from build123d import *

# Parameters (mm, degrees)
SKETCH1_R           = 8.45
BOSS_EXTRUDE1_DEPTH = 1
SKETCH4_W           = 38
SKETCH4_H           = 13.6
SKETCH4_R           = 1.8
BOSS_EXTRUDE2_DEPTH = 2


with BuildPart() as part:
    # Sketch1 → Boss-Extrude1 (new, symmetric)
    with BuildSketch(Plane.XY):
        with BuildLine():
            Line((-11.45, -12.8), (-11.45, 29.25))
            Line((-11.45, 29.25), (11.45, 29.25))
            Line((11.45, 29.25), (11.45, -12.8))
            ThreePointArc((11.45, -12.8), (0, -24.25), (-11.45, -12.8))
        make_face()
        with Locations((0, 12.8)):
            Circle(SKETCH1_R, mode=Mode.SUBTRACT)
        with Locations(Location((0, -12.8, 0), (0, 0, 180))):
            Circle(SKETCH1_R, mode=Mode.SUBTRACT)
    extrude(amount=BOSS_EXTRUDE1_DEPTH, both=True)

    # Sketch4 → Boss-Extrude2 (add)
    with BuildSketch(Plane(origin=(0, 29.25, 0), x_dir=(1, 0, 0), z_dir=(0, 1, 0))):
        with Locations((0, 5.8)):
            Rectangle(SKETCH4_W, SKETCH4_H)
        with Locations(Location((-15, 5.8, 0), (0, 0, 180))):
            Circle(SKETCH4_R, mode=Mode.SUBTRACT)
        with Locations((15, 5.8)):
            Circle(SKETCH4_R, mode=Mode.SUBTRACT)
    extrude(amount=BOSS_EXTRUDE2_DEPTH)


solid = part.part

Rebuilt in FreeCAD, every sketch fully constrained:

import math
import FreeCAD as App
import Part
import Sketcher
from FreeCAD import Vector
Q = App.Units.Quantity


def add_polygon(sketch, points):
    """Adds a closed chain of lines whose ends are joined by coincident constraints."""
    first, n = sketch.GeometryCount, len(points)
    for a, b in zip(points, points[1:] + points[:1]):
        sketch.addGeometry(Part.LineSegment(App.Vector(*a, 0), App.Vector(*b, 0)), False)
    for i in range(n):
        sketch.addConstraint(Sketcher.Constraint("Coincident", first + i, 2, first + (i + 1) % n, 1))

doc = App.newDocument("Part")
params = doc.addObject("Spreadsheet::Sheet", "Params")
for row, (alias, value) in enumerate([
    ("sketch1_diameter", "16.9 mm"),
    ("sketch1_radius", "11.45 mm"),
    ("sketch1_height", "42.05 mm"),
    ("pad1_length", "2 mm"),
    ("sketch2_diameter", "3.6 mm"),
    ("sketch2_width", "38 mm"),
    ("sketch2_height", "13.6 mm"),
    ("pad2_length", "2 mm"),
], start=1):
    params.set(f"A{row}", alias)
    params.set(f"B{row}", "=" + value)
    params.setAlias(f"B{row}", alias)

body = doc.addObject("PartDesign::Body", "Body")

sketch1 = doc.addObject("Sketcher::SketchObject", "Sketch")
body.addObject(sketch1)
sketch1.AttachmentSupport = (doc.XY_Plane, [""])
sketch1.MapMode = "FlatFace"
sketch1.addGeometry([
    Part.LineSegment(Vector(-11, 29, 0), Vector(-11, -13, 0)),
    Part.ArcOfCircle(Part.Circle(Vector(0, -13, 0), Vector(0, 0, 1), 11), math.radians(180), math.radians(360)),
    Part.LineSegment(Vector(11, -13, 0), Vector(11, 29, 0)),
    Part.LineSegment(Vector(11, 29, 0), Vector(-11, 29, 0)),
    Part.Circle(Vector(0, -13, 0), Vector(0, 0, 1), 8),
    Part.Circle(Vector(0, 13, 0), Vector(0, 0, 1), 8),
], False)
sketch1.addConstraint([
    Sketcher.Constraint("Tangent", 0, 2, 1, 1),
    Sketcher.Constraint("Tangent", 1, 2, 2, 1),
    Sketcher.Constraint("Coincident", 2, 2, 3, 1),
    Sketcher.Constraint("Coincident", 3, 2, 0, 1),
    Sketcher.Constraint("Vertical", 0),
    Sketcher.Constraint("Vertical", 2),
    Sketcher.Constraint("Horizontal", 3),
    Sketcher.Constraint("Coincident", 4, 3, 1, 3),
    Sketcher.Constraint("Equal", 4, 5),
    Sketcher.Constraint("Symmetric", 1, 3, 5, 3, -1, 1),
    Sketcher.Constraint("PointOnObject", 1, 3, -2),
    Sketcher.Constraint("Diameter", 4, Q("16.9 mm")),
    Sketcher.Constraint("Radius", 1, Q("11.45 mm")),
    Sketcher.Constraint("DistanceY", 0, 2, 0, 1, Q("42.05 mm")),
    Sketcher.Constraint("DistanceY", 1, 3, -1, 1, Q("12.8 mm")),
])
sketch1.setExpression("Constraints[11]", "Params.sketch1_diameter")
sketch1.setExpression("Constraints[12]", "Params.sketch1_radius")
sketch1.setExpression("Constraints[13]", "Params.sketch1_height")
pad1 = doc.addObject("PartDesign::Pad", "Pad")
body.addObject(pad1)
pad1.Profile = sketch1
pad1.setExpression("Length", "Params.pad1_length")
pad1.Midplane = True

sketch2 = doc.addObject("Sketcher::SketchObject", "Sketch001")
body.addObject(sketch2)
sketch2.AttachmentSupport = (doc.XZ_Plane, [""])
sketch2.MapMode = "FlatFace"
sketch2.AttachmentOffset = App.Placement(Vector(0, 0, -29.25), App.Rotation())
add_polygon(sketch2, [(-19, -12.6), (-19, 1), (19, 1), (19, -12.6)])
sketch2.addGeometry(Part.Circle(Vector(-15, -5.8, 0), Vector(0, 0, 1), 1.8), False)
sketch2.addGeometry(Part.Circle(Vector(15, -5.8, 0), Vector(0, 0, 1), 1.8), False)
sketch2.addConstraint([
    Sketcher.Constraint("Vertical", 0),
    Sketcher.Constraint("Horizontal", 1),
    Sketcher.Constraint("Vertical", 2),
    Sketcher.Constraint("Horizontal", 3),
    Sketcher.Constraint("Equal", 4, 5),
    Sketcher.Constraint("Symmetric", 4, 3, 5, 3, -2),
    Sketcher.Constraint("Diameter", 4, Q("3.6 mm")),
    Sketcher.Constraint("DistanceX", 1, 1, 1, 2, Q("38 mm")),
    Sketcher.Constraint("DistanceY", 0, 1, 0, 2, Q("13.6 mm")),
    Sketcher.Constraint("DistanceX", 4, 3, -1, 1, Q("15 mm")),
    Sketcher.Constraint("DistanceX", 0, 2, -1, 1, Q("19 mm")),
    Sketcher.Constraint("DistanceY", -1, 1, 0, 2, Q("1 mm")),
    Sketcher.Constraint("DistanceY", 4, 3, -1, 1, Q("5.8 mm")),
])
sketch2.setExpression("Constraints[10]", "Params.sketch2_diameter")
sketch2.setExpression("Constraints[11]", "Params.sketch2_width")
sketch2.setExpression("Constraints[12]", "Params.sketch2_height")
pad2 = doc.addObject("PartDesign::Pad", "Pad001")
body.addObject(pad2)
pad2.Profile = sketch2
pad2.setExpression("Length", "Params.pad2_length")
pad2.Reversed = True

doc.recompute()
